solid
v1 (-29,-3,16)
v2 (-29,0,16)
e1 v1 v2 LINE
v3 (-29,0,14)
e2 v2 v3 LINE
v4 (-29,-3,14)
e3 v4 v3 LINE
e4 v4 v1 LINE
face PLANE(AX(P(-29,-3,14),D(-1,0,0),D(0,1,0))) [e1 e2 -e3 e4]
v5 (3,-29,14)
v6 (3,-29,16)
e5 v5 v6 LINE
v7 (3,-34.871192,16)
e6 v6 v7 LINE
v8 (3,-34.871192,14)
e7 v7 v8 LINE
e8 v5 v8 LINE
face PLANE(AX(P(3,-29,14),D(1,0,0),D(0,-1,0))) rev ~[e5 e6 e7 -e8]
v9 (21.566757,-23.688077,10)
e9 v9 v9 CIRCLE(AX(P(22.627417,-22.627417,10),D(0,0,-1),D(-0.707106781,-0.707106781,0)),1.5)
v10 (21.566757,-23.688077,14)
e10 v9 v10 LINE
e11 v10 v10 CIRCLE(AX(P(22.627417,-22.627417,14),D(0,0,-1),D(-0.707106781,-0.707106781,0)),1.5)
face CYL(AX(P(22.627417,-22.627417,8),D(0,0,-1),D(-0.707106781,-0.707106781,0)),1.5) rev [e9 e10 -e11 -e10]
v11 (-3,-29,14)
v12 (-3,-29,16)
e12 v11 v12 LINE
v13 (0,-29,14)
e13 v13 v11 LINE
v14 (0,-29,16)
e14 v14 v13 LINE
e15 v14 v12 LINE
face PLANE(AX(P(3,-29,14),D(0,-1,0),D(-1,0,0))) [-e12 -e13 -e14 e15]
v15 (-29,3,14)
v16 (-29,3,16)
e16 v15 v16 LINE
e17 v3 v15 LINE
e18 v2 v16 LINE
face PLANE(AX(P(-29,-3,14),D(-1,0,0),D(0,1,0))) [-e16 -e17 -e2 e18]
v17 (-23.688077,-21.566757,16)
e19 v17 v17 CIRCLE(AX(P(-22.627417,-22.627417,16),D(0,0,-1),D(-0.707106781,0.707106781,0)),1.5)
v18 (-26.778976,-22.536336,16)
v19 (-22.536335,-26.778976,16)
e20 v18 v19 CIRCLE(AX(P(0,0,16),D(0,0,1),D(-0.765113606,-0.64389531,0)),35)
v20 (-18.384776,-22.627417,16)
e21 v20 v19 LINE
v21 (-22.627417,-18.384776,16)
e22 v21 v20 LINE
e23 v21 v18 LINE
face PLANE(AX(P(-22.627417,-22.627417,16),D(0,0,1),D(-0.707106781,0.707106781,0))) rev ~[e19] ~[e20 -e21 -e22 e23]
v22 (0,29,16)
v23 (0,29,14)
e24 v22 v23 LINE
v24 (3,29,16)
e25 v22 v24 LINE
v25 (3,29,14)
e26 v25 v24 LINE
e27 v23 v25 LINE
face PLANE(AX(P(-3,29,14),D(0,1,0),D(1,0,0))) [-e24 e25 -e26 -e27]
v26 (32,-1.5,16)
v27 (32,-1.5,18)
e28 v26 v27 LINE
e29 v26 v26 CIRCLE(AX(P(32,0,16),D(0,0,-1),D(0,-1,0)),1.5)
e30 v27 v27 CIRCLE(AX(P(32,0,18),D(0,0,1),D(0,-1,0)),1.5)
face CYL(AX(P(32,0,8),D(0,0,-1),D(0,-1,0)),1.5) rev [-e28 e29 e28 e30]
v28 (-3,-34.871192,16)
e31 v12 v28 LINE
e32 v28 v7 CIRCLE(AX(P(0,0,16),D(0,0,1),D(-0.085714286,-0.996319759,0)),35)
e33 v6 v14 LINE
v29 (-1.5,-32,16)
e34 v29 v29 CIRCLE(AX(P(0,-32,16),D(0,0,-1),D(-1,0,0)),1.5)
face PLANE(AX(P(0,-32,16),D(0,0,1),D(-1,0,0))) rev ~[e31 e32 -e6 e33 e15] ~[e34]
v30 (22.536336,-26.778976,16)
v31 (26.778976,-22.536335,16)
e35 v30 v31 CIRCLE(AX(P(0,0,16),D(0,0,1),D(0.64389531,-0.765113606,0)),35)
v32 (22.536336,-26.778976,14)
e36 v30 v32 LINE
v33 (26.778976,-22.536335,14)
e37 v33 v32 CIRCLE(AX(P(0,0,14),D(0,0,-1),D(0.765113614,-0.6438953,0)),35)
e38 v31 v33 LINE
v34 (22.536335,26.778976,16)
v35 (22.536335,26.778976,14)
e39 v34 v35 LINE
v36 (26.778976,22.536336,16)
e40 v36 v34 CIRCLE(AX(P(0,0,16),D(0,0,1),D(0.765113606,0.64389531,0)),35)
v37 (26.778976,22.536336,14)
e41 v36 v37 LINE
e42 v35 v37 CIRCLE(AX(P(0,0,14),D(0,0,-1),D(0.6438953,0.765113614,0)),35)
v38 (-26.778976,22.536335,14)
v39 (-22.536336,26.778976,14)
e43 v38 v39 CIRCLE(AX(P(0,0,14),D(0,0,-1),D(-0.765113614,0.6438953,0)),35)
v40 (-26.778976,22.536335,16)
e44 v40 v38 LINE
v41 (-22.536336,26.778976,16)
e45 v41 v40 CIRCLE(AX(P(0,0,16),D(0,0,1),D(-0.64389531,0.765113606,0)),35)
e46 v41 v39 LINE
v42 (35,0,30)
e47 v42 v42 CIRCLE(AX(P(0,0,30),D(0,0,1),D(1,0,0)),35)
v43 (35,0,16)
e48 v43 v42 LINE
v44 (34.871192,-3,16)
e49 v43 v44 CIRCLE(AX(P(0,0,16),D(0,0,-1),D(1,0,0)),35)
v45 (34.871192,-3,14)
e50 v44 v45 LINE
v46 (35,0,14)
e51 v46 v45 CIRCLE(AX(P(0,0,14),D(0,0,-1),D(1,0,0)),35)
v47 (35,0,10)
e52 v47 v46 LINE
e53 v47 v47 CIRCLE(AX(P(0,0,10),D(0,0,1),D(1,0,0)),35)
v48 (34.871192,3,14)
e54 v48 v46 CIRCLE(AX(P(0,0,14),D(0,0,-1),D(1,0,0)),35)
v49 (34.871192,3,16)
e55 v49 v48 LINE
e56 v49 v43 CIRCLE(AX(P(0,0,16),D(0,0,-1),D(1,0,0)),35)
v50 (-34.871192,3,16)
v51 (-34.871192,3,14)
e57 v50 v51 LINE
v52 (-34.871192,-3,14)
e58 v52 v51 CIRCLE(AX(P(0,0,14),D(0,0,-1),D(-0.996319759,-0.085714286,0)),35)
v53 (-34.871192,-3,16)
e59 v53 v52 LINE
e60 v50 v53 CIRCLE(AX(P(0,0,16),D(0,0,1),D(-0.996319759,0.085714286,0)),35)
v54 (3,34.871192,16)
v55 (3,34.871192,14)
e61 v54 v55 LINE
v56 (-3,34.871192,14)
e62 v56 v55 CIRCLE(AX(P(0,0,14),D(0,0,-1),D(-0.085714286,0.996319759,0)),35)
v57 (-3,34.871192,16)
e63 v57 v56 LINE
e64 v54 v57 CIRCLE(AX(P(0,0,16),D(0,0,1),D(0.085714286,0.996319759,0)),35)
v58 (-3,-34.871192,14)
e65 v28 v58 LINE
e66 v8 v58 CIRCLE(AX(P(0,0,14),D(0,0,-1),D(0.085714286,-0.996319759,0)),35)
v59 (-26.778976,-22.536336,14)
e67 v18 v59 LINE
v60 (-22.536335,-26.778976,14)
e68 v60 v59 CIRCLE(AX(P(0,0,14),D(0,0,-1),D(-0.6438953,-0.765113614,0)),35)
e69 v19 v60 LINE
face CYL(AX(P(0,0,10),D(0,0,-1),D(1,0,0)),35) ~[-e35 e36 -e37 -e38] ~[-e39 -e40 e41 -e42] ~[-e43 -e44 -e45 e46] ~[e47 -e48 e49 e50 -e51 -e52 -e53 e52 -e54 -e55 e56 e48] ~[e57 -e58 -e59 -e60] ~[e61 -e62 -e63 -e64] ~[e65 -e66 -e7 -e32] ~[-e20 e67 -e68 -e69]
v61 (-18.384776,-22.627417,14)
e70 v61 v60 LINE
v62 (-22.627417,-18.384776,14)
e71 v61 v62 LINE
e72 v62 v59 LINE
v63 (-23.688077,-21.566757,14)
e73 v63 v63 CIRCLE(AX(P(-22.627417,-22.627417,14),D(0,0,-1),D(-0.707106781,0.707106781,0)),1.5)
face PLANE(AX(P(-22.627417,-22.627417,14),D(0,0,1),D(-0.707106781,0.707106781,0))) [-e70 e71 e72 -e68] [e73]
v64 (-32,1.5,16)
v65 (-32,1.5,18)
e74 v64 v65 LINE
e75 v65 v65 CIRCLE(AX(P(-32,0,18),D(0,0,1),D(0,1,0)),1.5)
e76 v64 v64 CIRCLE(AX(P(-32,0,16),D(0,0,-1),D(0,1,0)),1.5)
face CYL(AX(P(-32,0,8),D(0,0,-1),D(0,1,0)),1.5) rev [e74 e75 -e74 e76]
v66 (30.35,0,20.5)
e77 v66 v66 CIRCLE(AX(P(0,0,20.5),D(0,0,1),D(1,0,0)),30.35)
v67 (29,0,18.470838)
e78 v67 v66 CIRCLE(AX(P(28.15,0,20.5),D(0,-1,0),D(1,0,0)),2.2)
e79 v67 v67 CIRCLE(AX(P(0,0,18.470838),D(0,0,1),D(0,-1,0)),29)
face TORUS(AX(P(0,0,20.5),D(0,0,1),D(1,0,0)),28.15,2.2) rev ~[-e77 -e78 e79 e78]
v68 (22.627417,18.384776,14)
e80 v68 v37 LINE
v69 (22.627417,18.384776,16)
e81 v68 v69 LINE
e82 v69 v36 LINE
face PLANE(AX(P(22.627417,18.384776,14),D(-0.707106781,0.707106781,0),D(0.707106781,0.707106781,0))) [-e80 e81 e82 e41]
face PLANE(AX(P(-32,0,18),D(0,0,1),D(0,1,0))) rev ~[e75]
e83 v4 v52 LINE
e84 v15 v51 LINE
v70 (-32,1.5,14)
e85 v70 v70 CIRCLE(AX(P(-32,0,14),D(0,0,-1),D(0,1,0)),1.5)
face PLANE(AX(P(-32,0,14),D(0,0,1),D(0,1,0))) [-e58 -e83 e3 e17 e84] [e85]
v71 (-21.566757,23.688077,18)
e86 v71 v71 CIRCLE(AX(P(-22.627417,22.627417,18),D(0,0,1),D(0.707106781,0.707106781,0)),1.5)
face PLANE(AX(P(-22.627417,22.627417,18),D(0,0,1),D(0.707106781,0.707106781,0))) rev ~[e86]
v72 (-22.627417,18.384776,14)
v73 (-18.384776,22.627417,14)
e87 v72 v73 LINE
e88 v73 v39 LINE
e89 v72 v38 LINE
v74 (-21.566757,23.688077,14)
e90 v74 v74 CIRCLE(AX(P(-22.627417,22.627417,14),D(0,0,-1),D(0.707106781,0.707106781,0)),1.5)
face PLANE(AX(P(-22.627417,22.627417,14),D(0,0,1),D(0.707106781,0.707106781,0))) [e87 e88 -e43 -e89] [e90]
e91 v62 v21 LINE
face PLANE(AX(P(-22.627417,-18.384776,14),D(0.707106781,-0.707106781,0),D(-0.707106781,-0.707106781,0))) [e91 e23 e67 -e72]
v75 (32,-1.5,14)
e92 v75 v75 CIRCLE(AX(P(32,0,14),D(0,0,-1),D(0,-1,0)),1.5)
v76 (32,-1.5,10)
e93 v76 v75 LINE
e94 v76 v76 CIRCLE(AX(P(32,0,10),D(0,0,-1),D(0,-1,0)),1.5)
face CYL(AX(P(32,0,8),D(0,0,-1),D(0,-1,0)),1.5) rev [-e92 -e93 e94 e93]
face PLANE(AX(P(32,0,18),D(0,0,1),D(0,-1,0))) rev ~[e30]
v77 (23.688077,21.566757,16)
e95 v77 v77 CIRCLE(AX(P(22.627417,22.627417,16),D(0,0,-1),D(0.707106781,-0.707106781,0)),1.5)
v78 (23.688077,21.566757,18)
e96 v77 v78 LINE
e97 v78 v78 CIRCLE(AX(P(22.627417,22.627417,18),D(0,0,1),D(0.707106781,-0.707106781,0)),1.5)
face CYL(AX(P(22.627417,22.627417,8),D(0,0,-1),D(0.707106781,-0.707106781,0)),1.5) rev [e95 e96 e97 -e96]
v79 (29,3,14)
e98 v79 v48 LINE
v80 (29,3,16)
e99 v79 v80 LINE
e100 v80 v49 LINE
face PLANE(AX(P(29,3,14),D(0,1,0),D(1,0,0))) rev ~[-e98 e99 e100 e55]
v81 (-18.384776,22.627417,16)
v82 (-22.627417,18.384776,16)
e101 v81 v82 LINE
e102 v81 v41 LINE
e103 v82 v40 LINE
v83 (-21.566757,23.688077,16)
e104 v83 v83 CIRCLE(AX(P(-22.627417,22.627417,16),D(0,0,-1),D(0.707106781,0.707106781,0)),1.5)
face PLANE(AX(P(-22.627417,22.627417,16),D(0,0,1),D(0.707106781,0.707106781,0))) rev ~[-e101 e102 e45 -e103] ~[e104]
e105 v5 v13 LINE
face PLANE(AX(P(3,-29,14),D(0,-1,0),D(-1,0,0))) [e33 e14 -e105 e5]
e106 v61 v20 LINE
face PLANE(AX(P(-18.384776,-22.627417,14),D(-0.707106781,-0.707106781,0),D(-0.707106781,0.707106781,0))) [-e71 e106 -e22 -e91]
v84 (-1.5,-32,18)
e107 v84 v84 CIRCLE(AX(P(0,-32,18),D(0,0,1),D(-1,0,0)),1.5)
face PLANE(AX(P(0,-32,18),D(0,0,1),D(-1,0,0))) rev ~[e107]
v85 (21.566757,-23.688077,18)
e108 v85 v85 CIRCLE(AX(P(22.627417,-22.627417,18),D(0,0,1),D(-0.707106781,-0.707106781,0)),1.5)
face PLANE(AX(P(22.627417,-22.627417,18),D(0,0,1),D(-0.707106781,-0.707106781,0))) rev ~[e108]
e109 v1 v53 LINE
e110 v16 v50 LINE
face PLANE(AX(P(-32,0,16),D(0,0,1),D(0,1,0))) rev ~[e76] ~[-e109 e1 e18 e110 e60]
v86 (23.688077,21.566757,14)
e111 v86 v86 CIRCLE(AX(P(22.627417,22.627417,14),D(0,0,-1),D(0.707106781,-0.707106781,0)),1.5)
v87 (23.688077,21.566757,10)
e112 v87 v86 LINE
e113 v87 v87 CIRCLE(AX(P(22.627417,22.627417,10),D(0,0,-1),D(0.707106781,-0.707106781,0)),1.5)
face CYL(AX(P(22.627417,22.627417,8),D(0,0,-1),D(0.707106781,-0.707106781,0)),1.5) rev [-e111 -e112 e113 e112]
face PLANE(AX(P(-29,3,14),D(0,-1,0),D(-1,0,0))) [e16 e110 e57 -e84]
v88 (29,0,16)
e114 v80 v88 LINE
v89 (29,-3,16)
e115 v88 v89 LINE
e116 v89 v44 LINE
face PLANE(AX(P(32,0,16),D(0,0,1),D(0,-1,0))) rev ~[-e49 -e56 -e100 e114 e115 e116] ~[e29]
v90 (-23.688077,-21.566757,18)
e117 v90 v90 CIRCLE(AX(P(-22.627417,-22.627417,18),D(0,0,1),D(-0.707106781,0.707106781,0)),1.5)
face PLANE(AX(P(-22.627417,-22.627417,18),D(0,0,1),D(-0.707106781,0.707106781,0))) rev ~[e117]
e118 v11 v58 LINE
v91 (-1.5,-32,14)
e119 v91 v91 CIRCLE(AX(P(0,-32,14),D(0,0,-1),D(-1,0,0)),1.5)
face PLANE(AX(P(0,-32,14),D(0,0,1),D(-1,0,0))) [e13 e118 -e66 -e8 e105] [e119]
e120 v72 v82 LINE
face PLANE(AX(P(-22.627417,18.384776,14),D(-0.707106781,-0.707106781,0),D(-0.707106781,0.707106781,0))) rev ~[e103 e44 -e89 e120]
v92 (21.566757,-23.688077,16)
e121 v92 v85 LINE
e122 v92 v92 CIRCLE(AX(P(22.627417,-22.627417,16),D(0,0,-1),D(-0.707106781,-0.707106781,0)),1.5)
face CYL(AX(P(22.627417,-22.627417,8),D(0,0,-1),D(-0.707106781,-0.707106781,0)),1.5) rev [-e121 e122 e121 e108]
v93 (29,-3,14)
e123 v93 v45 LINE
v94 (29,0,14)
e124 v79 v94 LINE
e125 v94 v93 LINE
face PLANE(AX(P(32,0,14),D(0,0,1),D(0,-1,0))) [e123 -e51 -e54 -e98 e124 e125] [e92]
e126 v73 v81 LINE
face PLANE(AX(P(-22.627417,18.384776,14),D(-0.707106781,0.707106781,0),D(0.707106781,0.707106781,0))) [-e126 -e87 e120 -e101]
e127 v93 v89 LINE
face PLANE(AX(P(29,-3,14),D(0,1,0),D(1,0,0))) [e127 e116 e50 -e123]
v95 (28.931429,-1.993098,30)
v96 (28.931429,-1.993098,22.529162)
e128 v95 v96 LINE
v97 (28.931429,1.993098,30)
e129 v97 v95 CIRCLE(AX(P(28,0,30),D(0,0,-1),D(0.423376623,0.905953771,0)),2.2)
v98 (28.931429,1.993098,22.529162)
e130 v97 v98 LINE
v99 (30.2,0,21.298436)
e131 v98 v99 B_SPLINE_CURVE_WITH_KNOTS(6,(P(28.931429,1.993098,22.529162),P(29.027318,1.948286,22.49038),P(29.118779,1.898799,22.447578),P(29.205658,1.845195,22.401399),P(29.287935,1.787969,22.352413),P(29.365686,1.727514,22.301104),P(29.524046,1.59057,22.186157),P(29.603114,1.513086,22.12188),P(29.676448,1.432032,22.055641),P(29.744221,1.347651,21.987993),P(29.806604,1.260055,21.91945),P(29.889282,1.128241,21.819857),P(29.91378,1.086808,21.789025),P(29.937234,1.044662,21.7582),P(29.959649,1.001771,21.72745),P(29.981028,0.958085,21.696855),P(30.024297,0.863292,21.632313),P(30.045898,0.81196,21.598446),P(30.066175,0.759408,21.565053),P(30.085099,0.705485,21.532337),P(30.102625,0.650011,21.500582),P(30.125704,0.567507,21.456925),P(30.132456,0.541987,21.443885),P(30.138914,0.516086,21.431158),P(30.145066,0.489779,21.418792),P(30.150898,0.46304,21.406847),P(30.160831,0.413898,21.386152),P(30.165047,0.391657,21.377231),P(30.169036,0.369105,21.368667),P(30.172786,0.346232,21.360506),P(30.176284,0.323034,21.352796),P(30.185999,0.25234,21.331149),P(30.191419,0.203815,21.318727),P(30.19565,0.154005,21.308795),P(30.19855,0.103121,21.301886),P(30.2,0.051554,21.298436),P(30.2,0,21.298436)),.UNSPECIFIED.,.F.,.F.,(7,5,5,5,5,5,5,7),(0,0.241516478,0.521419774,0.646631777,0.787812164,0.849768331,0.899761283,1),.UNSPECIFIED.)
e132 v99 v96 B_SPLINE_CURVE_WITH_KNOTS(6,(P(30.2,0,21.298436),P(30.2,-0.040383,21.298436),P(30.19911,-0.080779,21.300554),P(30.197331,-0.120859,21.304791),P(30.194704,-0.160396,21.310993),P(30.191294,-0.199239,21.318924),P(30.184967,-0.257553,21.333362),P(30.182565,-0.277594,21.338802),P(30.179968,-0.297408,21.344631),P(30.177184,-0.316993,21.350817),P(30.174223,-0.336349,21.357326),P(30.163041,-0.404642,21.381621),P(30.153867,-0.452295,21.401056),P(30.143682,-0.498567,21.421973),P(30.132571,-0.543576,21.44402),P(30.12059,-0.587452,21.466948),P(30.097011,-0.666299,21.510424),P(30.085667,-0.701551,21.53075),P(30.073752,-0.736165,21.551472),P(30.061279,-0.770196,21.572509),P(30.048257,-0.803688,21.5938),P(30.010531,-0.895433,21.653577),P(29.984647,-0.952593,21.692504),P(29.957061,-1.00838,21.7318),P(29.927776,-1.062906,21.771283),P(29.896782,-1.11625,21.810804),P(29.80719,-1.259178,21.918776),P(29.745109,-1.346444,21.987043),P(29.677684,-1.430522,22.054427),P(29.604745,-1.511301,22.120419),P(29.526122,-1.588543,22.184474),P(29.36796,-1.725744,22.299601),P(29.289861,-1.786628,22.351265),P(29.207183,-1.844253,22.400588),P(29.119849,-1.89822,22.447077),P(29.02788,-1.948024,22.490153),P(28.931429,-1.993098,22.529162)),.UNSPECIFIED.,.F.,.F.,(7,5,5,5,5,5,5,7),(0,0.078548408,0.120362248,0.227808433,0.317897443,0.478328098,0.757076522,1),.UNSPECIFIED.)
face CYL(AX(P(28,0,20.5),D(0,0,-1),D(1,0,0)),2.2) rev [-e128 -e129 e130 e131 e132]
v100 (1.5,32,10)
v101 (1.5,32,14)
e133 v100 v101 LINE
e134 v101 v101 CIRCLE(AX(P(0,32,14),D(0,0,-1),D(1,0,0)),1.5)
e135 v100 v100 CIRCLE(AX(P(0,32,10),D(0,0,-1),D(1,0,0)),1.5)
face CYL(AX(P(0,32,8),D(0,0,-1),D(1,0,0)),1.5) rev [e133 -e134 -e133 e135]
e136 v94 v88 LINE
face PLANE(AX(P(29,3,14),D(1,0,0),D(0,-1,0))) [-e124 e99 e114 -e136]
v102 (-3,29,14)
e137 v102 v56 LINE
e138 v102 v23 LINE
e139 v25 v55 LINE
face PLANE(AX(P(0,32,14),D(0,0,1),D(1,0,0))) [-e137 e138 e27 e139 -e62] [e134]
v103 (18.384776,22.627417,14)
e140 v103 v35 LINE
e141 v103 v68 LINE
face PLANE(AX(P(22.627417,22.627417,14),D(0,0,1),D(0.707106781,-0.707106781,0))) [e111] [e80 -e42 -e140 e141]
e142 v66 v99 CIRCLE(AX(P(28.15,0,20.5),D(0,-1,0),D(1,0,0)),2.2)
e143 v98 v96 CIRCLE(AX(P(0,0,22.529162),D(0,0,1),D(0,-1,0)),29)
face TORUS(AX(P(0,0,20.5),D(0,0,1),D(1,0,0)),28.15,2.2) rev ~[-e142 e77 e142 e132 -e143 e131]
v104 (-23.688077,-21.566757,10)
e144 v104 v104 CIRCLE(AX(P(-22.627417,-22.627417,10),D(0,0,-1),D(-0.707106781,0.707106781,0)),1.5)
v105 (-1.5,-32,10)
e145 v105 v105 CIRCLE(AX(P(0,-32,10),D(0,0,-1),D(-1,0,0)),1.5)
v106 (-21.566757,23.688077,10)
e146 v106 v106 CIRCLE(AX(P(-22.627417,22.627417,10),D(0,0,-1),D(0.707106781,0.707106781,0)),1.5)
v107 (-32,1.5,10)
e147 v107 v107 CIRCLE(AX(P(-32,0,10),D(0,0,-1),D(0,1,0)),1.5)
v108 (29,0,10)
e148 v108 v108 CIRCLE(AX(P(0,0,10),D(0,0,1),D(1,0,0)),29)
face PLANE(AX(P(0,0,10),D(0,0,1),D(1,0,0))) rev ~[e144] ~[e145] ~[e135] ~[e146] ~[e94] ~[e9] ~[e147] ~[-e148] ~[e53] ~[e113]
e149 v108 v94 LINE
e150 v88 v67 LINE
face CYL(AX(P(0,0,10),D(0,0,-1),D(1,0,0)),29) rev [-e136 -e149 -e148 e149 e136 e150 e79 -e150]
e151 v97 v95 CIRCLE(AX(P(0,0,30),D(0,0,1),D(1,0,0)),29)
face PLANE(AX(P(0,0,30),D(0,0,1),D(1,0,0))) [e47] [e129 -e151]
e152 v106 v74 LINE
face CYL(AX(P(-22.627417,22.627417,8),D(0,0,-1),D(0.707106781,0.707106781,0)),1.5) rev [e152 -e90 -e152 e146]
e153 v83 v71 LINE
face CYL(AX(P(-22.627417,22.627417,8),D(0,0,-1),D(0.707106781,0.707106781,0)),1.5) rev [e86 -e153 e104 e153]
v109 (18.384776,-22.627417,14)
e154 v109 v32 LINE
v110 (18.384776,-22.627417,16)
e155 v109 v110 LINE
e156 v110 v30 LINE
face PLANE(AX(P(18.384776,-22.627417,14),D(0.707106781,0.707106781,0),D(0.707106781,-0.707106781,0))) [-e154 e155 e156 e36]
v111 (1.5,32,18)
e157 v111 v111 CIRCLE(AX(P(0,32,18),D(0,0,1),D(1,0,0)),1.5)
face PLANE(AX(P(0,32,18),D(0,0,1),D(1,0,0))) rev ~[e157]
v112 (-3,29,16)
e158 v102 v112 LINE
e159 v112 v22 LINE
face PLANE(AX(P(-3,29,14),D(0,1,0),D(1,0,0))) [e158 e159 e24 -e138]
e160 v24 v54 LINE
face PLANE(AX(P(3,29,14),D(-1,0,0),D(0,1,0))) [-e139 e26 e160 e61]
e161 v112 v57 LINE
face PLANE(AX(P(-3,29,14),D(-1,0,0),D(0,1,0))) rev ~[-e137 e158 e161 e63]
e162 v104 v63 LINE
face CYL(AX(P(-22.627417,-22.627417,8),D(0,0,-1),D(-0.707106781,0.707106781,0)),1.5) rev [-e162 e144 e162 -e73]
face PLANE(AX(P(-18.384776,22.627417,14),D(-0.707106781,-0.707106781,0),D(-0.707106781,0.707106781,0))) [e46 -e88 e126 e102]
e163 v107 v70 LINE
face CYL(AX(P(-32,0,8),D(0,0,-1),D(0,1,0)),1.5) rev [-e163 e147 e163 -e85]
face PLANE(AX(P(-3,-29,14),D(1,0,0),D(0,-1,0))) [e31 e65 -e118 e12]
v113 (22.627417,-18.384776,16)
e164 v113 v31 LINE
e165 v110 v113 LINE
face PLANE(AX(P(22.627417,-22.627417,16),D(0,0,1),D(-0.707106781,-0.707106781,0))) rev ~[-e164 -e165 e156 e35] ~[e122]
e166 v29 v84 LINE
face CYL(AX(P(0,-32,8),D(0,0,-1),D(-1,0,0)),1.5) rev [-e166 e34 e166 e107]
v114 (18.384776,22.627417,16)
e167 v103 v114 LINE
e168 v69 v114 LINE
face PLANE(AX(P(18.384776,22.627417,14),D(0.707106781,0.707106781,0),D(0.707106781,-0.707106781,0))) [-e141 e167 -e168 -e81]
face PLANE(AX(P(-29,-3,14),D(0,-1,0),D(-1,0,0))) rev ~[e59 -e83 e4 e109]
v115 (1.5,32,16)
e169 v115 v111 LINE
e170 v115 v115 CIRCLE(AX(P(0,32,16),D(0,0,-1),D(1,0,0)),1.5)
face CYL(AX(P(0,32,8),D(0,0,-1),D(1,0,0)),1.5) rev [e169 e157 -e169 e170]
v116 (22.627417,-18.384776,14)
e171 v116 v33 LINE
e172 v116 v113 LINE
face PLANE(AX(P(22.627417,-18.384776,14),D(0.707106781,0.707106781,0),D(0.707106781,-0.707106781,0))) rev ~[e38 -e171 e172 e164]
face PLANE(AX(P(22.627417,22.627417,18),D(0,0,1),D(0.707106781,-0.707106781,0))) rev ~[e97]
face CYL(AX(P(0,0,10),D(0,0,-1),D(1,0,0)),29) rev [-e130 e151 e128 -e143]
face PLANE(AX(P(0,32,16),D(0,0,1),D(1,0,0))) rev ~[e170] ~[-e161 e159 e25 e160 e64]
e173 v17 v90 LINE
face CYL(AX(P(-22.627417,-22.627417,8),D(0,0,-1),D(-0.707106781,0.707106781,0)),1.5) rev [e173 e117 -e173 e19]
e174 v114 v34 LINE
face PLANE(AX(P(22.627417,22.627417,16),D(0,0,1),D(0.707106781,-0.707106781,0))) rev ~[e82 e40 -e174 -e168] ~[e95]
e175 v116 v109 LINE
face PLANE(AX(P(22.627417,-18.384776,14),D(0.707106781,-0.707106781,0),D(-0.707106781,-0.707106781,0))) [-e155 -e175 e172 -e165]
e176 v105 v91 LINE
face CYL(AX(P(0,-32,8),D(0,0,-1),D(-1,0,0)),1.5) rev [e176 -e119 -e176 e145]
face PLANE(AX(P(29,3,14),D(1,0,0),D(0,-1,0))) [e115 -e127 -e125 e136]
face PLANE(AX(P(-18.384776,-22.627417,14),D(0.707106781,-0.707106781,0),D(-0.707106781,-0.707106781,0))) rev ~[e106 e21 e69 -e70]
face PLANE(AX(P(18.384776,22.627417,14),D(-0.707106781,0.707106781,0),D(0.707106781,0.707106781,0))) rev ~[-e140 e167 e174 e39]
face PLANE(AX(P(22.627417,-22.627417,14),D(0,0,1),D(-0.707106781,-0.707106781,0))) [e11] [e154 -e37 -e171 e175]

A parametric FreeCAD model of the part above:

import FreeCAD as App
import Part
import Sketcher
Q = App.Units.Quantity

doc = App.newDocument("Part")
body = doc.addObject("PartDesign::Body", "Body")

# Sketch on XY plane
sketch1 = body.newObject("Sketcher::SketchObject", "Sketch")
sketch1.AttachmentSupport = (doc.getObject("XY_Plane"), [""])
sketch1.MapMode = "FlatFace"
sketch1.AttachmentOffset = App.Placement(App.Vector(0, 0, 14), App.Rotation())
sketch1.addGeometry(Part.LineSegment(App.Vector(-35, -3, 0), App.Vector(-29, -3, 0)), False)
sketch1.addGeometry(Part.LineSegment(App.Vector(-29, -3, 0), App.Vector(-29, 3, 0)), False)
sketch1.addGeometry(Part.LineSegment(App.Vector(-29, 3, 0), App.Vector(-35, 3, 0)), False)
sketch1.addGeometry(Part.LineSegment(App.Vector(-35, 3, 0), App.Vector(-35, -3, 0)), False)
sketch1.addConstraint(Sketcher.Constraint("Coincident", 0, 2, 1, 1))
sketch1.addConstraint(Sketcher.Constraint("Coincident", 1, 2, 2, 1))
sketch1.addConstraint(Sketcher.Constraint("Coincident", 2, 2, 3, 1))
sketch1.addConstraint(Sketcher.Constraint("Coincident", 3, 2, 0, 1))
sketch1.addConstraint(Sketcher.Constraint("Horizontal", 0))
sketch1.addConstraint(Sketcher.Constraint("Vertical", 1))
sketch1.addConstraint(Sketcher.Constraint("Horizontal", 2))
sketch1.addConstraint(Sketcher.Constraint("Vertical", 3))
sketch1.addConstraint(Sketcher.Constraint("Equal", 2, 1))
sketch1.addConstraint(Sketcher.Constraint("DistanceX", 0, 1, 0, 2, Q("6 mm")))
sketch1.addConstraint(Sketcher.Constraint("DistanceX", 0, 2, -1, 1, Q("29 mm")))
sketch1.addConstraint(Sketcher.Constraint("DistanceY", 0, 2, -1, 1, Q("3 mm")))
pad1 = body.newObject("PartDesign::Pad", "Pad")
pad1.Profile = sketch1
pad1.Length = 2
body2 = doc.addObject("PartDesign::Body", "Body001")

# Sketch on XY plane
sketch2 = body2.newObject("Sketcher::SketchObject", "Sketch001")
sketch2.AttachmentSupport = (doc.getObject("XY_Plane001"), [""])
sketch2.MapMode = "FlatFace"
sketch2.addGeometry(Part.LineSegment(App.Vector(0, 6, 0), App.Vector(0, 0, 0)), False)
sketch2.addGeometry(Part.LineSegment(App.Vector(0, 0, 0), App.Vector(6, 0, 0)), False)
sketch2.addGeometry(Part.LineSegment(App.Vector(6, 0, 0), App.Vector(6, 6, 0)), False)
sketch2.addGeometry(Part.LineSegment(App.Vector(6, 6, 0), App.Vector(0, 6, 0)), False)
sketch2.addConstraint(Sketcher.Constraint("Coincident", 0, 2, 1, 1))
sketch2.addConstraint(Sketcher.Constraint("Coincident", 1, 2, 2, 1))
sketch2.addConstraint(Sketcher.Constraint("Coincident", 2, 2, 3, 1))
sketch2.addConstraint(Sketcher.Constraint("Coincident", 3, 2, 0, 1))
sketch2.addConstraint(Sketcher.Constraint("Vertical", 0))
sketch2.addConstraint(Sketcher.Constraint("Horizontal", 1))
sketch2.addConstraint(Sketcher.Constraint("Vertical", 2))
sketch2.addConstraint(Sketcher.Constraint("Horizontal", 3))
sketch2.addConstraint(Sketcher.Constraint("Coincident", 0, 2, -1, 1))
sketch2.addConstraint(Sketcher.Constraint("Equal", 3, 0))
sketch2.addConstraint(Sketcher.Constraint("DistanceX", 1, 1, 1, 2, Q("6 mm")))
pad2 = body2.newObject("PartDesign::Pad", "Pad001")
pad2.Profile = sketch2
pad2.Length = 2
body3 = doc.addObject("PartDesign::Body", "Body002")
doc.recompute()

body2.Placement = App.Placement(App.Vector(-18.384776, -22.627417, 14), App.Rotation(App.Vector(0, 0, 1), 135))
boolean = body3.newObject("PartDesign::Boolean", "Boolean")
boolean.Type = "Fuse"
boolean.addObjects([body2])
body4 = doc.addObject("PartDesign::Body", "Body003")

# Sketch on XY plane
sketch3 = body4.newObject("Sketcher::SketchObject", "Sketch002")
sketch3.AttachmentSupport = (doc.getObject("XY_Plane003"), [""])
sketch3.MapMode = "FlatFace"
sketch3.AttachmentOffset = App.Placement(App.Vector(0, 0, 14), App.Rotation())
sketch3.addGeometry(Part.LineSegment(App.Vector(3, -35, 0), App.Vector(3, -29, 0)), False)
sketch3.addGeometry(Part.LineSegment(App.Vector(3, -29, 0), App.Vector(-3, -29, 0)), False)
sketch3.addGeometry(Part.LineSegment(App.Vector(-3, -29, 0), App.Vector(-3, -35, 0)), False)
sketch3.addGeometry(Part.LineSegment(App.Vector(-3, -35, 0), App.Vector(3, -35, 0)), False)
sketch3.addConstraint(Sketcher.Constraint("Coincident", 0, 2, 1, 1))
sketch3.addConstraint(Sketcher.Constraint("Coincident", 1, 2, 2, 1))
sketch3.addConstraint(Sketcher.Constraint("Coincident", 2, 2, 3, 1))
sketch3.addConstraint(Sketcher.Constraint("Coincident", 3, 2, 0, 1))
sketch3.addConstraint(Sketcher.Constraint("Vertical", 0))
sketch3.addConstraint(Sketcher.Constraint("Horizontal", 1))
sketch3.addConstraint(Sketcher.Constraint("Vertical", 2))
sketch3.addConstraint(Sketcher.Constraint("Horizontal", 3))
sketch3.addConstraint(Sketcher.Constraint("Equal", 3, 0))
sketch3.addConstraint(Sketcher.Constraint("DistanceX", 1, 2, 1, 1, Q("6 mm")))
sketch3.addConstraint(Sketcher.Constraint("DistanceX", -1, 1, 0, 2, Q("3 mm")))
sketch3.addConstraint(Sketcher.Constraint("DistanceY", 0, 2, -1, 1, Q("29 mm")))
pad3 = body4.newObject("PartDesign::Pad", "Pad002")
pad3.Profile = sketch3
pad3.Length = 2
body5 = doc.addObject("PartDesign::Body", "Body004")

# Sketch on XY plane
sketch4 = body5.newObject("Sketcher::SketchObject", "Sketch003")
sketch4.AttachmentSupport = (doc.getObject("XY_Plane004"), [""])
sketch4.MapMode = "FlatFace"
sketch4.addGeometry(Part.LineSegment(App.Vector(0, 6, 0), App.Vector(0, 0, 0)), False)
sketch4.addGeometry(Part.LineSegment(App.Vector(0, 0, 0), App.Vector(6, 0, 0)), False)
sketch4.addGeometry(Part.LineSegment(App.Vector(6, 0, 0), App.Vector(6, 6, 0)), False)
sketch4.addGeometry(Part.LineSegment(App.Vector(6, 6, 0), App.Vector(0, 6, 0)), False)
sketch4.addConstraint(Sketcher.Constraint("Coincident", 0, 2, 1, 1))
sketch4.addConstraint(Sketcher.Constraint("Coincident", 1, 2, 2, 1))
sketch4.addConstraint(Sketcher.Constraint("Coincident", 2, 2, 3, 1))
sketch4.addConstraint(Sketcher.Constraint("Coincident", 3, 2, 0, 1))
sketch4.addConstraint(Sketcher.Constraint("Vertical", 0))
sketch4.addConstraint(Sketcher.Constraint("Horizontal", 1))
sketch4.addConstraint(Sketcher.Constraint("Vertical", 2))
sketch4.addConstraint(Sketcher.Constraint("Horizontal", 3))
sketch4.addConstraint(Sketcher.Constraint("Coincident", 0, 2, -1, 1))
sketch4.addConstraint(Sketcher.Constraint("Equal", 3, 0))
sketch4.addConstraint(Sketcher.Constraint("DistanceX", 1, 1, 1, 2, Q("6 mm")))
pad4 = body5.newObject("PartDesign::Pad", "Pad003")
pad4.Profile = sketch4
pad4.Length = 2
body6 = doc.addObject("PartDesign::Body", "Body005")
doc.recompute()

body5.Placement = App.Placement(App.Vector(22.627417, -18.384776, 14), App.Rotation(App.Vector(0, 0, 1), 225))
boolean2 = body6.newObject("PartDesign::Boolean", "Boolean001")
boolean2.Type = "Fuse"
boolean2.addObjects([body5])
body7 = doc.addObject("PartDesign::Body", "Body006")

# Sketch on XY plane
sketch5 = body7.newObject("Sketcher::SketchObject", "Sketch004")
sketch5.AttachmentSupport = (doc.getObject("XY_Plane006"), [""])
sketch5.MapMode = "FlatFace"
sketch5.AttachmentOffset = App.Placement(App.Vector(0, 0, 14), App.Rotation())
sketch5.addGeometry(Part.LineSegment(App.Vector(35, 3, 0), App.Vector(29, 3, 0)), False)
sketch5.addGeometry(Part.LineSegment(App.Vector(29, 3, 0), App.Vector(29, -3, 0)), False)
sketch5.addGeometry(Part.LineSegment(App.Vector(29, -3, 0), App.Vector(35, -3, 0)), False)
sketch5.addGeometry(Part.LineSegment(App.Vector(35, -3, 0), App.Vector(35, 3, 0)), False)
sketch5.addConstraint(Sketcher.Constraint("Coincident", 0, 2, 1, 1))
sketch5.addConstraint(Sketcher.Constraint("Coincident", 1, 2, 2, 1))
sketch5.addConstraint(Sketcher.Constraint("Coincident", 2, 2, 3, 1))
sketch5.addConstraint(Sketcher.Constraint("Coincident", 3, 2, 0, 1))
sketch5.addConstraint(Sketcher.Constraint("Horizontal", 0))
sketch5.addConstraint(Sketcher.Constraint("Vertical", 1))
sketch5.addConstraint(Sketcher.Constraint("Horizontal", 2))
sketch5.addConstraint(Sketcher.Constraint("Vertical", 3))
sketch5.addConstraint(Sketcher.Constraint("Equal", 2, 1))
sketch5.addConstraint(Sketcher.Constraint("DistanceX", 0, 2, 0, 1, Q("6 mm")))
sketch5.addConstraint(Sketcher.Constraint("DistanceX", -1, 1, 0, 2, Q("29 mm")))
sketch5.addConstraint(Sketcher.Constraint("DistanceY", -1, 1, 0, 2, Q("3 mm")))
pad5 = body7.newObject("PartDesign::Pad", "Pad004")
pad5.Profile = sketch5
pad5.Length = 2
body8 = doc.addObject("PartDesign::Body", "Body007")

# Sketch on XY plane
sketch6 = body8.newObject("Sketcher::SketchObject", "Sketch005")
sketch6.AttachmentSupport = (doc.getObject("XY_Plane007"), [""])
sketch6.MapMode = "FlatFace"
sketch6.addGeometry(Part.LineSegment(App.Vector(0, 6, 0), App.Vector(0, 0, 0)), False)
sketch6.addGeometry(Part.LineSegment(App.Vector(0, 0, 0), App.Vector(6, 0, 0)), False)
sketch6.addGeometry(Part.LineSegment(App.Vector(6, 0, 0), App.Vector(6, 6, 0)), False)
sketch6.addGeometry(Part.LineSegment(App.Vector(6, 6, 0), App.Vector(0, 6, 0)), False)
sketch6.addConstraint(Sketcher.Constraint("Coincident", 0, 2, 1, 1))
sketch6.addConstraint(Sketcher.Constraint("Coincident", 1, 2, 2, 1))
sketch6.addConstraint(Sketcher.Constraint("Coincident", 2, 2, 3, 1))
sketch6.addConstraint(Sketcher.Constraint("Coincident", 3, 2, 0, 1))
sketch6.addConstraint(Sketcher.Constraint("Vertical", 0))
sketch6.addConstraint(Sketcher.Constraint("Horizontal", 1))
sketch6.addConstraint(Sketcher.Constraint("Vertical", 2))
sketch6.addConstraint(Sketcher.Constraint("Horizontal", 3))
sketch6.addConstraint(Sketcher.Constraint("Coincident", 0, 2, -1, 1))
sketch6.addConstraint(Sketcher.Constraint("Equal", 3, 0))
sketch6.addConstraint(Sketcher.Constraint("DistanceX", 1, 1, 1, 2, Q("6 mm")))
pad6 = body8.newObject("PartDesign::Pad", "Pad005")
pad6.Profile = sketch6
pad6.Length = 2
body9 = doc.addObject("PartDesign::Body", "Body008")
doc.recompute()

body8.Placement = App.Placement(App.Vector(18.384776, 22.627417, 14), App.Rotation(App.Vector(0, 0, -1), 45))
boolean3 = body9.newObject("PartDesign::Boolean", "Boolean002")
boolean3.Type = "Fuse"
boolean3.addObjects([body8])
body10 = doc.addObject("PartDesign::Body", "Body009")

# Sketch on XY plane
sketch7 = body10.newObject("Sketcher::SketchObject", "Sketch006")
sketch7.AttachmentSupport = (doc.getObject("XY_Plane009"), [""])
sketch7.MapMode = "FlatFace"
sketch7.AttachmentOffset = App.Placement(App.Vector(0, 0, 14), App.Rotation())
sketch7.addGeometry(Part.LineSegment(App.Vector(-3, 35, 0), App.Vector(-3, 29, 0)), False)
sketch7.addGeometry(Part.LineSegment(App.Vector(-3, 29, 0), App.Vector(3, 29, 0)), False)
sketch7.addGeometry(Part.LineSegment(App.Vector(3, 29, 0), App.Vector(3, 35, 0)), False)
sketch7.addGeometry(Part.LineSegment(App.Vector(3, 35, 0), App.Vector(-3, 35, 0)), False)
sketch7.addConstraint(Sketcher.Constraint("Coincident", 0, 2, 1, 1))
sketch7.addConstraint(Sketcher.Constraint("Coincident", 1, 2, 2, 1))
sketch7.addConstraint(Sketcher.Constraint("Coincident", 2, 2, 3, 1))
sketch7.addConstraint(Sketcher.Constraint("Coincident", 3, 2, 0, 1))
sketch7.addConstraint(Sketcher.Constraint("Vertical", 0))
sketch7.addConstraint(Sketcher.Constraint("Horizontal", 1))
sketch7.addConstraint(Sketcher.Constraint("Vertical", 2))
sketch7.addConstraint(Sketcher.Constraint("Horizontal", 3))
sketch7.addConstraint(Sketcher.Constraint("Equal", 3, 0))
sketch7.addConstraint(Sketcher.Constraint("DistanceX", 1, 1, 1, 2, Q("6 mm")))
sketch7.addConstraint(Sketcher.Constraint("DistanceX", 0, 2, -1, 1, Q("3 mm")))
sketch7.addConstraint(Sketcher.Constraint("DistanceY", -1, 1, 0, 2, Q("29 mm")))
pad7 = body10.newObject("PartDesign::Pad", "Pad006")
pad7.Profile = sketch7
pad7.Length = 2
body11 = doc.addObject("PartDesign::Body", "Body010")

# Sketch on XY plane
sketch8 = body11.newObject("Sketcher::SketchObject", "Sketch007")
sketch8.AttachmentSupport = (doc.getObject("XY_Plane010"), [""])
sketch8.MapMode = "FlatFace"
sketch8.addGeometry(Part.LineSegment(App.Vector(0, 6, 0), App.Vector(0, 0, 0)), False)
sketch8.addGeometry(Part.LineSegment(App.Vector(0, 0, 0), App.Vector(6, 0, 0)), False)
sketch8.addGeometry(Part.LineSegment(App.Vector(6, 0, 0), App.Vector(6, 6, 0)), False)
sketch8.addGeometry(Part.LineSegment(App.Vector(6, 6, 0), App.Vector(0, 6, 0)), False)
sketch8.addConstraint(Sketcher.Constraint("Coincident", 0, 2, 1, 1))
sketch8.addConstraint(Sketcher.Constraint("Coincident", 1, 2, 2, 1))
sketch8.addConstraint(Sketcher.Constraint("Coincident", 2, 2, 3, 1))
sketch8.addConstraint(Sketcher.Constraint("Coincident", 3, 2, 0, 1))
sketch8.addConstraint(Sketcher.Constraint("Vertical", 0))
sketch8.addConstraint(Sketcher.Constraint("Horizontal", 1))
sketch8.addConstraint(Sketcher.Constraint("Vertical", 2))
sketch8.addConstraint(Sketcher.Constraint("Horizontal", 3))
sketch8.addConstraint(Sketcher.Constraint("Coincident", 0, 2, -1, 1))
sketch8.addConstraint(Sketcher.Constraint("Equal", 3, 0))
sketch8.addConstraint(Sketcher.Constraint("DistanceX", 1, 1, 1, 2, Q("6 mm")))
pad8 = body11.newObject("PartDesign::Pad", "Pad007")
pad8.Profile = sketch8
pad8.Length = 2
body12 = doc.addObject("PartDesign::Body", "Body011")
body12.AllowCompound = True
doc.recompute()

body11.Placement = App.Placement(App.Vector(-22.627417, 18.384776, 14), App.Rotation(App.Vector(0, 0, 1), 45))
boolean4 = body12.newObject("PartDesign::Boolean", "Boolean003")
boolean4.Type = "Fuse"
boolean4.addObjects([body11])
doc.recompute()

boolean5 = body12.newObject("PartDesign::Boolean", "Boolean004")
boolean5.Type = "Fuse"
boolean5.addObjects([body])
doc.recompute()

boolean6 = body12.newObject("PartDesign::Boolean", "Boolean005")
boolean6.Type = "Fuse"
boolean6.addObjects([body3])
doc.recompute()

boolean7 = body12.newObject("PartDesign::Boolean", "Boolean006")
boolean7.Type = "Fuse"
boolean7.addObjects([body4])
doc.recompute()

boolean8 = body12.newObject("PartDesign::Boolean", "Boolean007")
boolean8.Type = "Fuse"
boolean8.addObjects([body6])
doc.recompute()

boolean9 = body12.newObject("PartDesign::Boolean", "Boolean008")
boolean9.Type = "Fuse"
boolean9.addObjects([body7])
doc.recompute()

boolean10 = body12.newObject("PartDesign::Boolean", "Boolean009")
boolean10.Type = "Fuse"
boolean10.addObjects([body9])
doc.recompute()

boolean11 = body12.newObject("PartDesign::Boolean", "Boolean010")
boolean11.Type = "Fuse"
boolean11.addObjects([body10])
body13 = doc.addObject("PartDesign::Body", "Body012")

# Sketch on XY plane
sketch9 = body13.newObject("Sketcher::SketchObject", "Sketch008")
sketch9.AttachmentSupport = (doc.getObject("XY_Plane012"), [""])
sketch9.MapMode = "FlatFace"
sketch9.AttachmentOffset = App.Placement(App.Vector(0, 0, 10), App.Rotation())
sketch9.addGeometry(Part.Circle(App.Vector(-32, 0, 0), App.Vector(0, 0, 1), 1.5), False)
sketch9.addConstraint(Sketcher.Constraint("PointOnObject", 0, 3, -1))
sketch9.addConstraint(Sketcher.Constraint("Diameter", 0, Q("3 mm")))
sketch9.addConstraint(Sketcher.Constraint("DistanceX", 0, 3, -1, 1, Q("32 mm")))
pad9 = body13.newObject("PartDesign::Pad", "Pad008")
pad9.Profile = sketch9
pad9.Length = 10
body14 = doc.addObject("PartDesign::Body", "Body013")

# Sketch on XY plane
sketch10 = body14.newObject("Sketcher::SketchObject", "Sketch009")
sketch10.AttachmentSupport = (doc.getObject("XY_Plane013"), [""])
sketch10.MapMode = "FlatFace"
sketch10.addGeometry(Part.Circle(App.Vector(0, 0, 0), App.Vector(0, 0, 1), 1.5), False)
sketch10.addConstraint(Sketcher.Constraint("Coincident", 0, 3, -1, 1))
sketch10.addConstraint(Sketcher.Constraint("Diameter", 0, Q("3 mm")))
pad10 = body14.newObject("PartDesign::Pad", "Pad009")
pad10.Profile = sketch10
pad10.Length = 10
body15 = doc.addObject("PartDesign::Body", "Body014")
doc.recompute()

body14.Placement = App.Placement(App.Vector(-22.627417, -22.627417, 10), App.Rotation(App.Vector(0, 0, 1), 135))
boolean12 = body15.newObject("PartDesign::Boolean", "Boolean011")
boolean12.Type = "Fuse"
boolean12.addObjects([body14])
body16 = doc.addObject("PartDesign::Body", "Body015")

# Sketch on XY plane
sketch11 = body16.newObject("Sketcher::SketchObject", "Sketch010")
sketch11.AttachmentSupport = (doc.getObject("XY_Plane015"), [""])
sketch11.MapMode = "FlatFace"
sketch11.AttachmentOffset = App.Placement(App.Vector(0, 0, 10), App.Rotation())
sketch11.addGeometry(Part.Circle(App.Vector(0, -32, 0), App.Vector(0, 0, 1), 1.5), False)
sketch11.addConstraint(Sketcher.Constraint("PointOnObject", 0, 3, -2))
sketch11.addConstraint(Sketcher.Constraint("Diameter", 0, Q("3 mm")))
sketch11.addConstraint(Sketcher.Constraint("DistanceY", 0, 3, -1, 1, Q("32 mm")))
pad11 = body16.newObject("PartDesign::Pad", "Pad010")
pad11.Profile = sketch11
pad11.Length = 10
body17 = doc.addObject("PartDesign::Body", "Body016")

# Sketch on XY plane
sketch12 = body17.newObject("Sketcher::SketchObject", "Sketch011")
sketch12.AttachmentSupport = (doc.getObject("XY_Plane016"), [""])
sketch12.MapMode = "FlatFace"
sketch12.addGeometry(Part.Circle(App.Vector(0, 0, 0), App.Vector(0, 0, 1), 1.5), False)
sketch12.addConstraint(Sketcher.Constraint("Coincident", 0, 3, -1, 1))
sketch12.addConstraint(Sketcher.Constraint("Diameter", 0, Q("3 mm")))
pad12 = body17.newObject("PartDesign::Pad", "Pad011")
pad12.Profile = sketch12
pad12.Length = 10
body18 = doc.addObject("PartDesign::Body", "Body017")
doc.recompute()

body17.Placement = App.Placement(App.Vector(22.627417, -22.627417, 10), App.Rotation(App.Vector(0, 0, 1), 225))
boolean13 = body18.newObject("PartDesign::Boolean", "Boolean012")
boolean13.Type = "Fuse"
boolean13.addObjects([body17])
body19 = doc.addObject("PartDesign::Body", "Body018")

# Sketch on XY plane
sketch13 = body19.newObject("Sketcher::SketchObject", "Sketch012")
sketch13.AttachmentSupport = (doc.getObject("XY_Plane018"), [""])
sketch13.MapMode = "FlatFace"
sketch13.AttachmentOffset = App.Placement(App.Vector(0, 0, 10), App.Rotation())
sketch13.addGeometry(Part.Circle(App.Vector(32, 0, 0), App.Vector(0, 0, 1), 1.5), False)
sketch13.addConstraint(Sketcher.Constraint("PointOnObject", 0, 3, -1))
sketch13.addConstraint(Sketcher.Constraint("Diameter", 0, Q("3 mm")))
sketch13.addConstraint(Sketcher.Constraint("DistanceX", -1, 1, 0, 3, Q("32 mm")))
pad13 = body19.newObject("PartDesign::Pad", "Pad012")
pad13.Profile = sketch13
pad13.Length = 10
body20 = doc.addObject("PartDesign::Body", "Body019")

# Sketch on XY plane
sketch14 = body20.newObject("Sketcher::SketchObject", "Sketch013")
sketch14.AttachmentSupport = (doc.getObject("XY_Plane019"), [""])
sketch14.MapMode = "FlatFace"
sketch14.addGeometry(Part.Circle(App.Vector(0, 0, 0), App.Vector(0, 0, 1), 1.5), False)
sketch14.addConstraint(Sketcher.Constraint("Coincident", 0, 3, -1, 1))
sketch14.addConstraint(Sketcher.Constraint("Diameter", 0, Q("3 mm")))
pad14 = body20.newObject("PartDesign::Pad", "Pad013")
pad14.Profile = sketch14
pad14.Length = 10
body21 = doc.addObject("PartDesign::Body", "Body020")
doc.recompute()

body20.Placement = App.Placement(App.Vector(22.627417, 22.627417, 10), App.Rotation(App.Vector(0, 0, -1), 45))
boolean14 = body21.newObject("PartDesign::Boolean", "Boolean013")
boolean14.Type = "Fuse"
boolean14.addObjects([body20])
body22 = doc.addObject("PartDesign::Body", "Body021")

# Sketch on XY plane
sketch15 = body22.newObject("Sketcher::SketchObject", "Sketch014")
sketch15.AttachmentSupport = (doc.getObject("XY_Plane021"), [""])
sketch15.MapMode = "FlatFace"
sketch15.AttachmentOffset = App.Placement(App.Vector(0, 0, 10), App.Rotation())
sketch15.addGeometry(Part.Circle(App.Vector(0, 32, 0), App.Vector(0, 0, 1), 1.5), False)
sketch15.addConstraint(Sketcher.Constraint("PointOnObject", 0, 3, -2))
sketch15.addConstraint(Sketcher.Constraint("Diameter", 0, Q("3 mm")))
sketch15.addConstraint(Sketcher.Constraint("DistanceY", -1, 1, 0, 3, Q("32 mm")))
pad15 = body22.newObject("PartDesign::Pad", "Pad014")
pad15.Profile = sketch15
pad15.Length = 10
body23 = doc.addObject("PartDesign::Body", "Body022")

# Sketch on XY plane
sketch16 = body23.newObject("Sketcher::SketchObject", "Sketch015")
sketch16.AttachmentSupport = (doc.getObject("XY_Plane022"), [""])
sketch16.MapMode = "FlatFace"
sketch16.addGeometry(Part.Circle(App.Vector(0, 0, 0), App.Vector(0, 0, 1), 1.5), False)
sketch16.addConstraint(Sketcher.Constraint("Coincident", 0, 3, -1, 1))
sketch16.addConstraint(Sketcher.Constraint("Diameter", 0, Q("3 mm")))
pad16 = body23.newObject("PartDesign::Pad", "Pad015")
pad16.Profile = sketch16
pad16.Length = 10
body24 = doc.addObject("PartDesign::Body", "Body023")
body24.AllowCompound = True
doc.recompute()

body23.Placement = App.Placement(App.Vector(-22.627417, 22.627417, 10), App.Rotation(App.Vector(0, 0, 1), 45))
boolean15 = body24.newObject("PartDesign::Boolean", "Boolean014")
boolean15.Type = "Fuse"
boolean15.addObjects([body23])
doc.recompute()

boolean16 = body24.newObject("PartDesign::Boolean", "Boolean015")
boolean16.Type = "Fuse"
boolean16.addObjects([body13])
doc.recompute()

boolean17 = body24.newObject("PartDesign::Boolean", "Boolean016")
boolean17.Type = "Fuse"
boolean17.addObjects([body15])
doc.recompute()

boolean18 = body24.newObject("PartDesign::Boolean", "Boolean017")
boolean18.Type = "Fuse"
boolean18.addObjects([body16])
doc.recompute()

boolean19 = body24.newObject("PartDesign::Boolean", "Boolean018")
boolean19.Type = "Fuse"
boolean19.addObjects([body18])
doc.recompute()

boolean20 = body24.newObject("PartDesign::Boolean", "Boolean019")
boolean20.Type = "Fuse"
boolean20.addObjects([body19])
doc.recompute()

boolean21 = body24.newObject("PartDesign::Boolean", "Boolean020")
boolean21.Type = "Fuse"
boolean21.addObjects([body21])
doc.recompute()

boolean22 = body24.newObject("PartDesign::Boolean", "Boolean021")
boolean22.Type = "Fuse"
boolean22.addObjects([body22])
body25 = doc.addObject("PartDesign::Body", "Body024")
body25.AllowCompound = True
doc.recompute()

body24.Placement = App.Placement(App.Vector(0, 0, -2), App.Rotation(App.Vector(0, 0, 1), 0))
boolean23 = body25.newObject("PartDesign::Boolean", "Boolean022")
boolean23.Type = "Fuse"
boolean23.addObjects([body24])
body26 = doc.addObject("PartDesign::Body", "Body025")

# Sketch on XY plane
sketch17 = body26.newObject("Sketcher::SketchObject", "Sketch016")
sketch17.AttachmentSupport = (doc.getObject("XY_Plane025"), [""])
sketch17.MapMode = "FlatFace"
sketch17.AttachmentOffset = App.Placement(App.Vector(0, 0, 20.5), App.Rotation())
sketch17.addGeometry(Part.Circle(App.Vector(28, 0, 0), App.Vector(0, 0, 1), 2.2), False)
sketch17.addConstraint(Sketcher.Constraint("PointOnObject", 0, 3, -1))
sketch17.addConstraint(Sketcher.Constraint("Diameter", 0, Q("4.4 mm")))
sketch17.addConstraint(Sketcher.Constraint("DistanceX", -1, 1, 0, 3, Q("28 mm")))
pad17 = body26.newObject("PartDesign::Pad", "Pad016")
pad17.Profile = sketch17
pad17.Length = 10
body27 = doc.addObject("PartDesign::Body", "Body026")

# Sketch on XZ plane
sketch18 = body27.newObject("Sketcher::SketchObject", "Sketch017")
sketch18.AttachmentSupport = (doc.getObject("XZ_Plane026"), [""])
sketch18.MapMode = "FlatFace"
sketch18.addGeometry(Part.Circle(App.Vector(28.1, 20.5, 0), App.Vector(0, 0, 1), 2.2), False)
sketch18.addConstraint(Sketcher.Constraint("Diameter", 0, Q("4.4 mm")))
sketch18.addConstraint(Sketcher.Constraint("DistanceY", -1, 1, 0, 3, Q("20.5 mm")))
sketch18.addConstraint(Sketcher.Constraint("DistanceX", -1, 1, 0, 3, Q("28.15 mm")))
revolution = body27.newObject("PartDesign::Revolution", "Revolution")
revolution.Profile = sketch18
revolution.ReferenceAxis = (sketch18, ["V_Axis"])
revolution.Angle = 360
body28 = doc.addObject("PartDesign::Body", "Body027")

# Sketch on XY plane
sketch19 = body28.newObject("Sketcher::SketchObject", "Sketch018")
sketch19.AttachmentSupport = (doc.getObject("XY_Plane027"), [""])
sketch19.MapMode = "FlatFace"
sketch19.AttachmentOffset = App.Placement(App.Vector(0, 0, 10), App.Rotation())
sketch19.addGeometry(Part.Circle(App.Vector(0, 0, 0), App.Vector(0, 0, 1), 35), False)
sketch19.addGeometry(Part.Circle(App.Vector(0, 0, 0), App.Vector(0, 0, 1), 29), False)
sketch19.addConstraint(Sketcher.Constraint("Coincident", 0, 3, -1, 1))
sketch19.addConstraint(Sketcher.Constraint("Coincident", 1, 3, -1, 1))
sketch19.addConstraint(Sketcher.Constraint("Diameter", 0, Q("70 mm")))
sketch19.addConstraint(Sketcher.Constraint("Diameter", 1, Q("58 mm")))
pad18 = body28.newObject("PartDesign::Pad", "Pad017")
pad18.Profile = sketch19
pad18.Length = 20
doc.recompute()

boolean24 = body28.newObject("PartDesign::Boolean", "Boolean023")
boolean24.Type = "Cut"
boolean24.addObjects([body27])
doc.recompute()

boolean25 = body28.newObject("PartDesign::Boolean", "Boolean024")
boolean25.Type = "Cut"
boolean25.addObjects([body26])
doc.recompute()

boolean26 = body28.newObject("PartDesign::Boolean", "Boolean025")
boolean26.Type = "Cut"
boolean26.addObjects([body25])
doc.recompute()

boolean27 = body28.newObject("PartDesign::Boolean", "Boolean026")
boolean27.Type = "Cut"
boolean27.addObjects([body12])

doc.recompute()
